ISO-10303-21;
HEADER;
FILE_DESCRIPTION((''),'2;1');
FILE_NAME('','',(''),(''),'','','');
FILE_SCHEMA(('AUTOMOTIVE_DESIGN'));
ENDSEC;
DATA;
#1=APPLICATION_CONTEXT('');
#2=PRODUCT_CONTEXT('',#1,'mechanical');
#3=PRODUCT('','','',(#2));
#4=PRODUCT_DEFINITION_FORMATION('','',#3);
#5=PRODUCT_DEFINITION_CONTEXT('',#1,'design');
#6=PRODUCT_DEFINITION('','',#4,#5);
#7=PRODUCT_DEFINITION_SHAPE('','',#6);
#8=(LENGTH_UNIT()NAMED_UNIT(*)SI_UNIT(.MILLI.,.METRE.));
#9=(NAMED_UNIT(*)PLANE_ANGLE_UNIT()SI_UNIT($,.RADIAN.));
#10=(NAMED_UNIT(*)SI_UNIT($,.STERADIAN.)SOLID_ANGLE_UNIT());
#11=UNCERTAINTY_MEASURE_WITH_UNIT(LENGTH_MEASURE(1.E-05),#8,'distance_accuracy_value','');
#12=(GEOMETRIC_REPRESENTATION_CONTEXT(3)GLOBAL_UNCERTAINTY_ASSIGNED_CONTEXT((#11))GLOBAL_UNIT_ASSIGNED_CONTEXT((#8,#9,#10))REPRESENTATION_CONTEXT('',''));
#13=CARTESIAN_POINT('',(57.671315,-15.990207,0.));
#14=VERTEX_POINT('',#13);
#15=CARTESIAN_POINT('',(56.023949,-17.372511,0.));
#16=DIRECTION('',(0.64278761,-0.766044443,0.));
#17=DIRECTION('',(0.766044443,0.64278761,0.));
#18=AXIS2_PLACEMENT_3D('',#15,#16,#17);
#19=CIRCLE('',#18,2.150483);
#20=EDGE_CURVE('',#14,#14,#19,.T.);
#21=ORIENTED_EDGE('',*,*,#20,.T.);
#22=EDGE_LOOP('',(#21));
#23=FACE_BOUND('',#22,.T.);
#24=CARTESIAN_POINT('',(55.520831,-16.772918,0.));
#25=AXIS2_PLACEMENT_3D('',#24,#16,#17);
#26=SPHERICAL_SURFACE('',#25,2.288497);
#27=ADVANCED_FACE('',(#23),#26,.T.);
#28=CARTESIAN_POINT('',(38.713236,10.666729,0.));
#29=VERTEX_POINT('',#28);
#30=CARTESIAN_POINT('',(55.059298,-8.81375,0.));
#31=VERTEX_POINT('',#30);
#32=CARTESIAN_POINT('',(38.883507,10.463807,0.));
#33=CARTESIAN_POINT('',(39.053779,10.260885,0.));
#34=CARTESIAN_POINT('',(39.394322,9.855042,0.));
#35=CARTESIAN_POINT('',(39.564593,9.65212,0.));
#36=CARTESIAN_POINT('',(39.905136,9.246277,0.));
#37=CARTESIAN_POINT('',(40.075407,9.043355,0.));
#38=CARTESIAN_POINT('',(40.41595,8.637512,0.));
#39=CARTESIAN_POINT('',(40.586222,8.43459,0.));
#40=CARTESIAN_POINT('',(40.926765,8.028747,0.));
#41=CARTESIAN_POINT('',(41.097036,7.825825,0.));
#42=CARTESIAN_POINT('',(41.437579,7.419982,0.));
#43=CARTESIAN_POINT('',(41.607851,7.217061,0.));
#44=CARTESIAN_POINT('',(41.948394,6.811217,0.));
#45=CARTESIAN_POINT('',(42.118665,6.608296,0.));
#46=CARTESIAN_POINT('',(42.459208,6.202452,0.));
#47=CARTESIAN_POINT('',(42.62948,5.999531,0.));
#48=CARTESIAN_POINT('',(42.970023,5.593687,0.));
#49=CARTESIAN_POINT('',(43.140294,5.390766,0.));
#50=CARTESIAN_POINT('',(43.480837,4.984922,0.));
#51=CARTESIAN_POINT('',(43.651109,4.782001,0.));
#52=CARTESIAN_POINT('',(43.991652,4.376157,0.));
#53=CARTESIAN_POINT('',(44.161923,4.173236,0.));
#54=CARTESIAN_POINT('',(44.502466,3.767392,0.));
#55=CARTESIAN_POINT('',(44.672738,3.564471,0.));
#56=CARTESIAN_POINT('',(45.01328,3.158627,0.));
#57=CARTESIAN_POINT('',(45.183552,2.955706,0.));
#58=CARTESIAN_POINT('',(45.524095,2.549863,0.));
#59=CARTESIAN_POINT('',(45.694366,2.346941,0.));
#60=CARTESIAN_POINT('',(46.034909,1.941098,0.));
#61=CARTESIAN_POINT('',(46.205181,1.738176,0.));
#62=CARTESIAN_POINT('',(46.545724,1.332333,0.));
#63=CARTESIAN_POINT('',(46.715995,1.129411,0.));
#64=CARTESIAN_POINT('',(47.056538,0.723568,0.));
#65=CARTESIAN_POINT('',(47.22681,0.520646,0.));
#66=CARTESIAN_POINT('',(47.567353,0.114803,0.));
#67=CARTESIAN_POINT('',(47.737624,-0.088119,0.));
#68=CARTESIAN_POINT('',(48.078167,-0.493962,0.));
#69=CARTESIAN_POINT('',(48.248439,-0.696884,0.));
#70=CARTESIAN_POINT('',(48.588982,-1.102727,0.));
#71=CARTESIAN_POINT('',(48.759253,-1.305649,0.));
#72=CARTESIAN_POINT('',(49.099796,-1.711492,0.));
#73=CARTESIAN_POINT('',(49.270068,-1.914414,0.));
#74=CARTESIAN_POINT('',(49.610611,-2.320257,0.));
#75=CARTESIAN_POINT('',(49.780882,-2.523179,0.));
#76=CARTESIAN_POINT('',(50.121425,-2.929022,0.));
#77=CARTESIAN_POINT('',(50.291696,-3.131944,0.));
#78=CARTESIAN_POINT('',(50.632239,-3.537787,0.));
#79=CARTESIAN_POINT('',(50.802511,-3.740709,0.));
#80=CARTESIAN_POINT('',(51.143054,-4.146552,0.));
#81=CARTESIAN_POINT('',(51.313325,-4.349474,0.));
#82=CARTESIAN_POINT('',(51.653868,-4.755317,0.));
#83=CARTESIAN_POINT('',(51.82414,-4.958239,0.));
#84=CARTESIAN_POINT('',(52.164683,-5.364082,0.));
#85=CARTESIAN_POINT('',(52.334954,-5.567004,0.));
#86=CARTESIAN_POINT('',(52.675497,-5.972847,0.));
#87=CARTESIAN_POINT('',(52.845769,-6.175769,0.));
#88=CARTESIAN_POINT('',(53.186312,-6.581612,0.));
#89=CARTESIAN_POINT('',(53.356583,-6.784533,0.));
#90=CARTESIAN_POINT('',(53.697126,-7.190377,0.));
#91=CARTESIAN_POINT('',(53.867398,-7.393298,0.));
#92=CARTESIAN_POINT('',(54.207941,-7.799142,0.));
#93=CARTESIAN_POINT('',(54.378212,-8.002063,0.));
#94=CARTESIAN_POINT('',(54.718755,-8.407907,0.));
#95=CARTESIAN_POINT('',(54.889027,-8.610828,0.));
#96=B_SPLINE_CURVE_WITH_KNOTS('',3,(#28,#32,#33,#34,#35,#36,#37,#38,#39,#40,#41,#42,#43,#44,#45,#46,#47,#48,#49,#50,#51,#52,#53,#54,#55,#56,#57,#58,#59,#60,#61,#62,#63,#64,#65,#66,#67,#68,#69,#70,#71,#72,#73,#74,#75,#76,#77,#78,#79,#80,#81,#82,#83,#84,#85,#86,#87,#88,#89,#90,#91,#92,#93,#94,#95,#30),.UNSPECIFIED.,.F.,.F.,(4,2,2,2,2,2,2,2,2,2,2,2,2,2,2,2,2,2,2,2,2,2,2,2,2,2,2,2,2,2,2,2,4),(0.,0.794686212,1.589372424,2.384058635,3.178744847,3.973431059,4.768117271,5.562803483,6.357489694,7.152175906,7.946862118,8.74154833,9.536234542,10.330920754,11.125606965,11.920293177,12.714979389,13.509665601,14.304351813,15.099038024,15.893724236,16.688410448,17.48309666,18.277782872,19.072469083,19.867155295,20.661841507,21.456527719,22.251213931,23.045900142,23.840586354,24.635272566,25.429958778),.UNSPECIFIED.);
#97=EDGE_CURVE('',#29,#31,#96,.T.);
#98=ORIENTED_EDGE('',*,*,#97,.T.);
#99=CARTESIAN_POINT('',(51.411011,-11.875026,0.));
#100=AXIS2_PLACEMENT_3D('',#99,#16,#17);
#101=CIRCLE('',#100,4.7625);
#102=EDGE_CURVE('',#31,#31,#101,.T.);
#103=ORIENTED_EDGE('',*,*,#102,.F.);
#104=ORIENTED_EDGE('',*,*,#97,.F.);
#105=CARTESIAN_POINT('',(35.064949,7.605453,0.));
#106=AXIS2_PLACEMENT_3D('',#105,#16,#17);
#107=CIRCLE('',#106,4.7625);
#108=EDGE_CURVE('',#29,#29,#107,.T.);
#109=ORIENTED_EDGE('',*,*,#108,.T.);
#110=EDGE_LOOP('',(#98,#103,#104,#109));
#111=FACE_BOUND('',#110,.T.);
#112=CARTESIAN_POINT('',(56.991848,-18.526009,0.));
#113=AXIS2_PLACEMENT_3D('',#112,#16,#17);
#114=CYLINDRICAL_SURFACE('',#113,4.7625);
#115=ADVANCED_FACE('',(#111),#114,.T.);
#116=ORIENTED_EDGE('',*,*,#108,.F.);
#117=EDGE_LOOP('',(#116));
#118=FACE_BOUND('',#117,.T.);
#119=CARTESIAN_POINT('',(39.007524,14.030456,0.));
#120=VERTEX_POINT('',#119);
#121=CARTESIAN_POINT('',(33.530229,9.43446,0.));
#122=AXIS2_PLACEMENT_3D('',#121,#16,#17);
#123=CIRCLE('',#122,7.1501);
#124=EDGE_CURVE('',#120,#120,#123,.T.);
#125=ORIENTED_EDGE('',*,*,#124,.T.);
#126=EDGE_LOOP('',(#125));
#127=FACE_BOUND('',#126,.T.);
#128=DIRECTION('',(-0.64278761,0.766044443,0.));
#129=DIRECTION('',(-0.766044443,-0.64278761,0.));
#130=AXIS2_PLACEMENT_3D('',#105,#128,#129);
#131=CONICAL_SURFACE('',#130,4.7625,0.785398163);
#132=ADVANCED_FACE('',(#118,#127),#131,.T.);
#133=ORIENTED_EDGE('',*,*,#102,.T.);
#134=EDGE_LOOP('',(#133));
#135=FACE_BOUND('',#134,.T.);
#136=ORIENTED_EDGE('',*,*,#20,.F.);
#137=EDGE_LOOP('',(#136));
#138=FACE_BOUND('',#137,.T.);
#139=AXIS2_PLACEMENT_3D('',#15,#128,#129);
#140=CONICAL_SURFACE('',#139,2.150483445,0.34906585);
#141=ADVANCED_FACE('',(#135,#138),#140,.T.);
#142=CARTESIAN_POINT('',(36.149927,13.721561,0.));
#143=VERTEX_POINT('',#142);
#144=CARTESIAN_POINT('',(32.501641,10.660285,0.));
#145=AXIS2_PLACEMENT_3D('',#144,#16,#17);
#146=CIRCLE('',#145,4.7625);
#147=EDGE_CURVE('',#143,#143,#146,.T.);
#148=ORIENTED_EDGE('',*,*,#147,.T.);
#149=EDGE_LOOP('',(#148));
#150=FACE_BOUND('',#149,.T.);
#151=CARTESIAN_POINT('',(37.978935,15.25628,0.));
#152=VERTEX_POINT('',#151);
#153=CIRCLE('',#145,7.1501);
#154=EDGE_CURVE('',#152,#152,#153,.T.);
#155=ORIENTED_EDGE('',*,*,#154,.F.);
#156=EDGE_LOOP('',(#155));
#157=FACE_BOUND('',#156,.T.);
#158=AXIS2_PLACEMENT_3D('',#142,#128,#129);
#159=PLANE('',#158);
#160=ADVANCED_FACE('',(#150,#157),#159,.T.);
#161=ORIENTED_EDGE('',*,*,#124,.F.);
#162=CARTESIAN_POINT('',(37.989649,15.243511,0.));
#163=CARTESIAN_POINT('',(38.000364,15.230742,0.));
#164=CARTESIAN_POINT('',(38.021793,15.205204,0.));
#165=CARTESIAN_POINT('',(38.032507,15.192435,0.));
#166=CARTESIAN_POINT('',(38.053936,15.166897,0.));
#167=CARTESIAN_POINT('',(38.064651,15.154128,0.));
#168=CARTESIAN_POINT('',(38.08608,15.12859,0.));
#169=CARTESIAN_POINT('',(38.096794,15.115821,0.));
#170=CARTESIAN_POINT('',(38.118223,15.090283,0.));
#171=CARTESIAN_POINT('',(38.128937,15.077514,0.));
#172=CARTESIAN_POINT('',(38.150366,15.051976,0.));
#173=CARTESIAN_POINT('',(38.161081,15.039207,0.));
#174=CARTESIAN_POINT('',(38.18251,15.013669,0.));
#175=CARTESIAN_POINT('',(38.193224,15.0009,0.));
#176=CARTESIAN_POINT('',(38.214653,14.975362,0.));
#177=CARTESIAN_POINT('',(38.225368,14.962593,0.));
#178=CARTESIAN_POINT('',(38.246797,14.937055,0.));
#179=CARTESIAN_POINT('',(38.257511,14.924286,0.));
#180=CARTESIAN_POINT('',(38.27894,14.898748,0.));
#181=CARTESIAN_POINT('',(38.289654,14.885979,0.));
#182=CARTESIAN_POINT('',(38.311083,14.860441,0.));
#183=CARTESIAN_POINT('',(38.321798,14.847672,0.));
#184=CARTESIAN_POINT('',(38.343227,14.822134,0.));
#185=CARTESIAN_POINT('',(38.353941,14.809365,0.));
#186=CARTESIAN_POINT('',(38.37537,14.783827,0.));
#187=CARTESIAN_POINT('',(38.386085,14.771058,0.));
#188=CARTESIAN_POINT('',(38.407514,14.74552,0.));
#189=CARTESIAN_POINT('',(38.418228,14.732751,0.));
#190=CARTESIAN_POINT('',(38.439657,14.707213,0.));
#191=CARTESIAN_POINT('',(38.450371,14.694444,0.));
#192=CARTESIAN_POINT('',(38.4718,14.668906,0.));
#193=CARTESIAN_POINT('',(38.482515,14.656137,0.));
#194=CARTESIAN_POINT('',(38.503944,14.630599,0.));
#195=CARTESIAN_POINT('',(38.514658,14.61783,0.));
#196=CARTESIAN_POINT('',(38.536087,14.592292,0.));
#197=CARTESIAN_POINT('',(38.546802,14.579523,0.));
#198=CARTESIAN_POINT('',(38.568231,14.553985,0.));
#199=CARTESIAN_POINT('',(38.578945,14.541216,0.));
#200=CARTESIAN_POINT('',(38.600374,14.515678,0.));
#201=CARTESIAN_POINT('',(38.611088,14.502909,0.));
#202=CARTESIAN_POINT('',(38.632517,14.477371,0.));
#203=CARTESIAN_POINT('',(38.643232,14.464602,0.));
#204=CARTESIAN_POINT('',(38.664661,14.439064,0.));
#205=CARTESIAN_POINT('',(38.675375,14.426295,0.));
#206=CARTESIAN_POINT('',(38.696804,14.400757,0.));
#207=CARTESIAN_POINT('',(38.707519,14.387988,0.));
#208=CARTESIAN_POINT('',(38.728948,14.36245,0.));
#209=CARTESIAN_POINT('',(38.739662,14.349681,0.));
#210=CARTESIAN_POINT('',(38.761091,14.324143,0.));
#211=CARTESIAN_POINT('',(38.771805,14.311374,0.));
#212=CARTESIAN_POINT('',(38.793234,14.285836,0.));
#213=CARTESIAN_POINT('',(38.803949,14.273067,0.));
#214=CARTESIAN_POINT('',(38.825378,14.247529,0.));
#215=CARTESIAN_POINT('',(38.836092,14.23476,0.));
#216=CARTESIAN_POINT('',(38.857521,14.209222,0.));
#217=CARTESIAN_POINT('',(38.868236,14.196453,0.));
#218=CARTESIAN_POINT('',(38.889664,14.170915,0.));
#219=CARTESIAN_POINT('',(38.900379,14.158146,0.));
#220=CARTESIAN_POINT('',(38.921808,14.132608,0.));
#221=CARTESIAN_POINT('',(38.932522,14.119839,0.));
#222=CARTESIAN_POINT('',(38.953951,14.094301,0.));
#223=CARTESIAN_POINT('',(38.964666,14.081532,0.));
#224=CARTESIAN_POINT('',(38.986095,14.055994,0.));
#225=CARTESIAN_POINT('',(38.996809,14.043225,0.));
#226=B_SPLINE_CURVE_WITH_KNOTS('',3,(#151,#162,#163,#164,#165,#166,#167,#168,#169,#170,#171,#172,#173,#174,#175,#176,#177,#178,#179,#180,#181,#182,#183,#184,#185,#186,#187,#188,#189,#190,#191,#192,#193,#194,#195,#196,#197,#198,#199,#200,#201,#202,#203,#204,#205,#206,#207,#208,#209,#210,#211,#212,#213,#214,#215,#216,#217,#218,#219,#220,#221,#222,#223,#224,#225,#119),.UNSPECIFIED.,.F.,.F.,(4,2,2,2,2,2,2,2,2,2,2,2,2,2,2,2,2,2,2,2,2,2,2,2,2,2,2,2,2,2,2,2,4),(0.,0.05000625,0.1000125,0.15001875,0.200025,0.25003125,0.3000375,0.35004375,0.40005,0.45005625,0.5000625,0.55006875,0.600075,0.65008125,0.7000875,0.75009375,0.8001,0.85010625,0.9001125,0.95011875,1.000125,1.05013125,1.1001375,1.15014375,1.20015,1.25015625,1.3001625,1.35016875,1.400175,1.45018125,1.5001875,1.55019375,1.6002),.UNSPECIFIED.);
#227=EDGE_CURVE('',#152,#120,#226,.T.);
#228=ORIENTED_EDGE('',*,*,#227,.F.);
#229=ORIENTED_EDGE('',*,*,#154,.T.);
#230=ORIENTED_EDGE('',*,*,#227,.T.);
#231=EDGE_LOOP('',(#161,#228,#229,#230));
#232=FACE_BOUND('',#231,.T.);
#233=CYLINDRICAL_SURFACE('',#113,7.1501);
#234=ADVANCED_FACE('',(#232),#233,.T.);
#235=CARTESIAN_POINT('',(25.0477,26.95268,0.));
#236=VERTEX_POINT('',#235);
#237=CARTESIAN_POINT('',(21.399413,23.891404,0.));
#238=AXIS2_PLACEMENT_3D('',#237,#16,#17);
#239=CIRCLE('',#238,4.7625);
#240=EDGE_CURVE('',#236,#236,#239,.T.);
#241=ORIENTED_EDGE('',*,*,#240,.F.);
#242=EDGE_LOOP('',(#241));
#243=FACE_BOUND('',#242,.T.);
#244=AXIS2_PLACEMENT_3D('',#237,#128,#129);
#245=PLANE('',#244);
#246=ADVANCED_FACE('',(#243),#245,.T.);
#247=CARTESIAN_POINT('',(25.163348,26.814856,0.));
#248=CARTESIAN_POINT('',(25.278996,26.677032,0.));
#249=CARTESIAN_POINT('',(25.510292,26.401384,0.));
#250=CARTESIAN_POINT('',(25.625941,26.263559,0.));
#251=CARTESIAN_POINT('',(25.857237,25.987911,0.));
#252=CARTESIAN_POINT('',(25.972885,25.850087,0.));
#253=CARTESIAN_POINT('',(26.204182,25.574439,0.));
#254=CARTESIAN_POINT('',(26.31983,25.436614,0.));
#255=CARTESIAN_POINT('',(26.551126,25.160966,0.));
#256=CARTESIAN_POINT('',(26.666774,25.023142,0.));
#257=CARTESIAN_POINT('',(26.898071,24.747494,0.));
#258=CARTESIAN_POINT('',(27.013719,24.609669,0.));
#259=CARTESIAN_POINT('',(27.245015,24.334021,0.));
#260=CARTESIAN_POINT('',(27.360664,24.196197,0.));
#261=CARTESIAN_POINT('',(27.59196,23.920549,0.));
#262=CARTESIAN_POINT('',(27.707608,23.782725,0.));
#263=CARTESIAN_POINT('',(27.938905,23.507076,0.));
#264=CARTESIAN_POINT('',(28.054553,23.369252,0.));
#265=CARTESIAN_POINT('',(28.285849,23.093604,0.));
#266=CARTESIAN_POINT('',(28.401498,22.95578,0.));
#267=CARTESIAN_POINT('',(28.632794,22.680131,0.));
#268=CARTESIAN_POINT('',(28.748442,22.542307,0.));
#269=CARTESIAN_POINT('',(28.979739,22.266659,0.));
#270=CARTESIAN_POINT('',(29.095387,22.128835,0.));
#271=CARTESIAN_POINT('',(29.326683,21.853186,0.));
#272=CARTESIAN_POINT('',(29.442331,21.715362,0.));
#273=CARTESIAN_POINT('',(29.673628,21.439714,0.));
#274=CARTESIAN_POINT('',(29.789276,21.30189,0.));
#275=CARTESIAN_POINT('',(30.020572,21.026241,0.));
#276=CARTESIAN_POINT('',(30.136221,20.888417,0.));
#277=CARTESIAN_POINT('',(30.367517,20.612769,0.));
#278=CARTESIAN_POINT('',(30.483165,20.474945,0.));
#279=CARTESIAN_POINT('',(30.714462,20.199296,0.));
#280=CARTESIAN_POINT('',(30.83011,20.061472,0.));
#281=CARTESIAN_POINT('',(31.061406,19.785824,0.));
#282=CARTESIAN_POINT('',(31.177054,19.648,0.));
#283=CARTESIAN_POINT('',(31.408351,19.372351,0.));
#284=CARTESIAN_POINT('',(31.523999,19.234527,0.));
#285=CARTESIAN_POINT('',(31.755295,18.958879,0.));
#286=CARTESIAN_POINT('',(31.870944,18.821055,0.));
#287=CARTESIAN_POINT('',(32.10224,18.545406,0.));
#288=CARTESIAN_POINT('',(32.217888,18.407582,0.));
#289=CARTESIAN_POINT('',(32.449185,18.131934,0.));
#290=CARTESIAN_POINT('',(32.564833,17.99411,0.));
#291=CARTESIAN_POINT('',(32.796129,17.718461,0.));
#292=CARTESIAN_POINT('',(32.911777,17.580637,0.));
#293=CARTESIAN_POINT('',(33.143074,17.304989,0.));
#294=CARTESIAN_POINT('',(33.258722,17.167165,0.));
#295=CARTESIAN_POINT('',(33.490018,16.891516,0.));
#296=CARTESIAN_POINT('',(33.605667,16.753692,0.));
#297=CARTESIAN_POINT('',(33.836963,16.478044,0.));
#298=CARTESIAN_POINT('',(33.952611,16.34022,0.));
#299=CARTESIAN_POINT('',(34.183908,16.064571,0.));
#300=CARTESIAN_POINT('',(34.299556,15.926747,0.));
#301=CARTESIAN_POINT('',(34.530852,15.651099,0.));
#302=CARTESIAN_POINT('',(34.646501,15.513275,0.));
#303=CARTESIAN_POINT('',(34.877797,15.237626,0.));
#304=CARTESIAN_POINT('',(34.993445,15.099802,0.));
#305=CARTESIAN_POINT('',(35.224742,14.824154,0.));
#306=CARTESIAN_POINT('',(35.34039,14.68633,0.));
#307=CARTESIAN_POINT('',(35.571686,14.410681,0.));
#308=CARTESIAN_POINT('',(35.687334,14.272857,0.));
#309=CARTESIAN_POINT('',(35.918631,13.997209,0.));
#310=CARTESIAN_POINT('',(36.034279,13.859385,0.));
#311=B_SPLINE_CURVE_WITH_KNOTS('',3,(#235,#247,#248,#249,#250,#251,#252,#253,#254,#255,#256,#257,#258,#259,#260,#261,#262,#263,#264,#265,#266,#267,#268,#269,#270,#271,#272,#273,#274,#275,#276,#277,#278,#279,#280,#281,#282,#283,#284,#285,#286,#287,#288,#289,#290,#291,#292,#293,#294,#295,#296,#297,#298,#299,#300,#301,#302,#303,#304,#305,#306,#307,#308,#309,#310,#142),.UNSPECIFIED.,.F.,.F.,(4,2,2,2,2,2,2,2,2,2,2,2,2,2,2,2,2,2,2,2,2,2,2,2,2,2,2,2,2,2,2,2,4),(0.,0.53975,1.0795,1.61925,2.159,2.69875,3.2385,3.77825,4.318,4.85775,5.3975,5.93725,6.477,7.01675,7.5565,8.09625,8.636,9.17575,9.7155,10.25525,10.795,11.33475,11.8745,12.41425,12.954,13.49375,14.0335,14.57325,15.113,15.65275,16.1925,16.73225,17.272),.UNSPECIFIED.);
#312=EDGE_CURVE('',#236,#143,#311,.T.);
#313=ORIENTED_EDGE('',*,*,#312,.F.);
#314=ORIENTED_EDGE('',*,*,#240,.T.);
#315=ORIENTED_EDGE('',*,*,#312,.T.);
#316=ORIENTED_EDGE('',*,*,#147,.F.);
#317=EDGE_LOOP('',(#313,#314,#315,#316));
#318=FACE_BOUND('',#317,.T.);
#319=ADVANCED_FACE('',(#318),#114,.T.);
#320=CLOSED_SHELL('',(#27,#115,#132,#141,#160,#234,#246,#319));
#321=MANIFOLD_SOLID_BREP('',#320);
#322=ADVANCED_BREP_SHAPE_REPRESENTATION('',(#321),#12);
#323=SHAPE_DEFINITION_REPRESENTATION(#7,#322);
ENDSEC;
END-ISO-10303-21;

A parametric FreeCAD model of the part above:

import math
import FreeCAD as App
import Part
import Sketcher
Q = App.Units.Quantity

doc = App.newDocument("Part")
body = doc.addObject("PartDesign::Body", "Body")

sketch1 = body.newObject("Sketcher::SketchObject", "Sketch")
sketch1.AttachmentSupport = (doc.getObject("XY_Plane"), [""])
sketch1.MapMode = "FlatFace"
sketch1.addGeometry(Part.LineSegment(App.Vector(36.1, 13.7, 0), App.Vector(25, 27, 0)), False)
sketch1.addGeometry(Part.LineSegment(App.Vector(25, 27, 0), App.Vector(21.4, 23.9, 0)), False)
sketch1.addGeometry(Part.LineSegment(App.Vector(21.4, 23.9, 0), App.Vector(57, -18.5, 0)), False)
sketch1.addGeometry(Part.ArcOfCircle(Part.Circle(App.Vector(55.5, -16.8, 0), App.Vector(0, 0, 1), 2.3), math.radians(-50), math.radians(20)), False)
sketch1.addGeometry(Part.LineSegment(App.Vector(57.7, -16, 0), App.Vector(55.1, -8.8, 0)), False)
sketch1.addGeometry(Part.LineSegment(App.Vector(55.1, -8.8, 0), App.Vector(38.7, 10.7, 0)), False)
sketch1.addGeometry(Part.LineSegment(App.Vector(38.7, 10.7, 0), App.Vector(39, 14, 0)), False)
sketch1.addGeometry(Part.LineSegment(App.Vector(39, 14, 0), App.Vector(38, 15.3, 0)), False)
sketch1.addGeometry(Part.LineSegment(App.Vector(38, 15.3, 0), App.Vector(36.1, 13.7, 0)), False)
sketch1.addGeometry(Part.LineSegment(App.Vector(57, -18.5, 0), App.Vector(21.4, 23.9, 0)), True)
sketch1.addConstraint(Sketcher.Constraint("Coincident", 0, 2, 1, 1))
sketch1.addConstraint(Sketcher.Constraint("Coincident", 1, 2, 2, 1))
sketch1.addConstraint(Sketcher.Constraint("Coincident", 2, 2, 3, 1))
sketch1.addConstraint(Sketcher.Constraint("Tangent", 3, 2, 4, 1))
sketch1.addConstraint(Sketcher.Constraint("Coincident", 4, 2, 5, 1))
sketch1.addConstraint(Sketcher.Constraint("Coincident", 5, 2, 6, 1))
sketch1.addConstraint(Sketcher.Constraint("Coincident", 6, 2, 7, 1))
sketch1.addConstraint(Sketcher.Constraint("Coincident", 7, 2, 8, 1))
sketch1.addConstraint(Sketcher.Constraint("Coincident", 8, 2, 0, 1))
sketch1.addConstraint(Sketcher.Constraint("Coincident", 9, 1, 2, 2))
sketch1.addConstraint(Sketcher.Constraint("Coincident", 9, 2, 1, 2))
sketch1.addConstraint(Sketcher.Constraint("Perpendicular", 0, 1))
sketch1.addConstraint(Sketcher.Constraint("Perpendicular", 1, 2))
sketch1.addConstraint(Sketcher.Constraint("Parallel", 2, 5))
sketch1.addConstraint(Sketcher.Constraint("Parallel", 5, 7))
sketch1.addConstraint(Sketcher.Constraint("Perpendicular", 7, 8))
sketch1.addConstraint(Sketcher.Constraint("Angle", 0, Q("130 deg")))
sketch1.addConstraint(Sketcher.Constraint("Angle", 4, Q("110 deg")))
sketch1.addConstraint(Sketcher.Constraint("Angle", 6, Q("85 deg")))
sketch1.addConstraint(Sketcher.Constraint("Distance", 0, Q("0.68 in")))
sketch1.addConstraint(Sketcher.Constraint("Distance", 2, Q("2.18 in")))
sketch1.addConstraint(Sketcher.Constraint("Distance", 1, Q("0.1875 in")))
sketch1.addConstraint(Sketcher.Constraint("Distance", 7, Q("0.063 in")))
sketch1.addConstraint(Sketcher.Constraint("Distance", 8, Q("0.094 in")))
sketch1.addConstraint(Sketcher.Constraint("Radius", 3, 2.288497))
sketch1.addConstraint(Sketcher.Constraint("DistanceX", -1, 1, 0, 2, 25.0477))
sketch1.addConstraint(Sketcher.Constraint("DistanceX", -1, 1, 4, 2, 55.059298))
sketch1.addConstraint(Sketcher.Constraint("DistanceY", 3, 3, 0, 2, 43.725599))
sketch1.addConstraint(Sketcher.Constraint("DistanceY", 3, 3, -1, 1, 16.772918))
revolution = body.newObject("PartDesign::Revolution", "Revolution")
revolution.Profile = sketch1
revolution.ReferenceAxis = (sketch1, ["Axis0"])
revolution.Angle = 360

doc.recompute()
